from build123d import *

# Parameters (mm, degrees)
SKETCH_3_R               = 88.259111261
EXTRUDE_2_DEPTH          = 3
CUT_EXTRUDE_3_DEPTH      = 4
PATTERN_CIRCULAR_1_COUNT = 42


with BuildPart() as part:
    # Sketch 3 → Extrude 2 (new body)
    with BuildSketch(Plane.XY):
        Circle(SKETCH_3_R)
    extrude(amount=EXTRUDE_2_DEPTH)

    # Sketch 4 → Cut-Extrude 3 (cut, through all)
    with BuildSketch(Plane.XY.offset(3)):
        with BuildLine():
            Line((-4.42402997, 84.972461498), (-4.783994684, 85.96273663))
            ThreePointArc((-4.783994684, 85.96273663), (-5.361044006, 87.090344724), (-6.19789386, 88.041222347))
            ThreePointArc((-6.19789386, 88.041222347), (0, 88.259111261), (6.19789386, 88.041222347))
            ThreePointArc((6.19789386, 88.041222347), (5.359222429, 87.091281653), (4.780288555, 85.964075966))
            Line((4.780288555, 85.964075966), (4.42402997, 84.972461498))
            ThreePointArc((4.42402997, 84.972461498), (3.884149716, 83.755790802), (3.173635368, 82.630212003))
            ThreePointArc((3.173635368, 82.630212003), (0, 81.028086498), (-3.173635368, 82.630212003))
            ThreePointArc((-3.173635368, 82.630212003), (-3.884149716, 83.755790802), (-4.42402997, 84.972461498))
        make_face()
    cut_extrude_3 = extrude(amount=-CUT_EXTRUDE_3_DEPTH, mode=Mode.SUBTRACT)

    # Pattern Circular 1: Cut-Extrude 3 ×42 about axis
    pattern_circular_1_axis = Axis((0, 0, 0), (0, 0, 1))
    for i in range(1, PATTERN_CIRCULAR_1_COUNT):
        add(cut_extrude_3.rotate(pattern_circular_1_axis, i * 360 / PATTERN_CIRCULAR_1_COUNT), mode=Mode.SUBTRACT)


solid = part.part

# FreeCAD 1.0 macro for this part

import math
import FreeCAD as App
import Part
import Sketcher
Q = App.Units.Quantity

doc = App.newDocument("Part")
body = doc.addObject("PartDesign::Body", "Body")

sketch1 = doc.addObject("Sketcher::SketchObject", "Sketch")
body.addObject(sketch1)
sketch1.AttachmentSupport = (doc.XY_Plane, [""])
sketch1.MapMode = "FlatFace"
sketch1.addGeometry(Part.Circle(App.Vector(0, 0, 0), App.Vector(0, 0, 1), 88), False)
sketch1.addConstraint(Sketcher.Constraint("Coincident", 0, 3, -1, 1))
sketch1.addConstraint(Sketcher.Constraint("Diameter", 0, Q("176.518223 mm")))
pad1 = doc.addObject("PartDesign::Pad", "Pad")
body.addObject(pad1)
pad1.Profile = sketch1
pad1.Length = 3

sketch2 = doc.addObject("Sketcher::SketchObject", "Sketch001")
body.addObject(sketch2)
sketch2.AttachmentSupport = (doc.XY_Plane, [""])
sketch2.MapMode = "FlatFace"
sketch2.AttachmentOffset = App.Placement(App.Vector(0, 0, 3), App.Rotation())
sketch2.addGeometry(Part.LineSegment(App.Vector(-4.8, 86, 0), App.Vector(-4.4, 85, 0)), False)
sketch2.addGeometry(Part.ArcOfCircle(Part.Circle(App.Vector(4.2, 88.1, 0), App.Vector(0, 0, 1), 9.2), math.radians(-160.24), math.radians(-143.57)), False)
sketch2.addGeometry(Part.ArcOfCircle(Part.Circle(App.Vector(0, 85, 0), App.Vector(0, 0, 1), 3.9), math.radians(-144), math.radians(-36)), False)
sketch2.addGeometry(Part.ArcOfCircle(Part.Circle(App.Vector(-4.2, 88.1, 0), App.Vector(0, 0, 1), 9.2), math.radians(-36.43), math.radians(-19.76)), False)
sketch2.addGeometry(Part.LineSegment(App.Vector(4.4, 85, 0), App.Vector(4.8, 86, 0)), False)
sketch2.addGeometry(Part.ArcOfCircle(Part.Circle(App.Vector(9.6, 84.2, 0), App.Vector(0, 0, 1), 5.1), math.radians(131), math.radians(160)), False)
sketch2.addGeometry(Part.ArcOfCircle(Part.Circle(App.Vector(0, 0, 0), App.Vector(0, 0, 1), 88.3), math.radians(85.97), math.radians(94.03)), False)
sketch2.addGeometry(Part.ArcOfCircle(Part.Circle(App.Vector(-9.6, 84.2, 0), App.Vector(0, 0, 1), 5.1), math.radians(20), math.radians(48)), False)
sketch2.addConstraint(Sketcher.Constraint("Coincident", 0, 2, 1, 1))
sketch2.addConstraint(Sketcher.Constraint("Tangent", 1, 2, 2, 1))
sketch2.addConstraint(Sketcher.Constraint("Tangent", 2, 2, 3, 1))
sketch2.addConstraint(Sketcher.Constraint("Tangent", 3, 2, 4, 1))
sketch2.addConstraint(Sketcher.Constraint("Coincident", 4, 2, 5, 2))
sketch2.addConstraint(Sketcher.Constraint("Coincident", 5, 1, 6, 1))
sketch2.addConstraint(Sketcher.Constraint("Coincident", 6, 2, 7, 2))
sketch2.addConstraint(Sketcher.Constraint("Tangent", 7, 1, 0, 1))
sketch2.addConstraint(Sketcher.Constraint("Coincident", 6, 3, -1, 1))
sketch2.addConstraint(Sketcher.Constraint("Equal", 1, 3))
sketch2.addConstraint(Sketcher.Constraint("Equal", 5, 7))
sketch2.addConstraint(Sketcher.Constraint("Symmetric", 1, 3, 3, 3, -2))
sketch2.addConstraint(Sketcher.Constraint("Horizontal", 2, 3, 0, 2))
sketch2.addConstraint(Sketcher.Constraint("Horizontal", 0, 2, 3, 2))
sketch2.addConstraint(Sketcher.Constraint("Horizontal", 5, 1, 6, 2))
sketch2.addConstraint(Sketcher.Constraint("Equal", 0, 4))
sketch2.addConstraint(Sketcher.Constraint("Radius", 5, Q("5.10636 mm")))
sketch2.addConstraint(Sketcher.Constraint("Radius", 6, Q("88.259111 mm")))
sketch2.addConstraint(Sketcher.Constraint("Radius", 1, Q("9.159863 mm")))
sketch2.addConstraint(Sketcher.Constraint("Radius", 2, Q("3.944375 mm")))
sketch2.addConstraint(Sketcher.Constraint("DistanceX", 7, 3, 1, 3, Q("13.779499 mm")))
sketch2.addConstraint(Sketcher.Constraint("DistanceX", 7, 3, 0, 2, Q("5.159099 mm")))
sketch2.addConstraint(Sketcher.Constraint("DistanceY", 5, 1, 1, 3, Q("0.028301 mm")))
sketch2.addConstraint(Sketcher.Constraint("DistanceX", 6, 2, 7, 1, Q("1.413899 mm")))
pocket1 = doc.addObject("PartDesign::Pocket", "Pocket")
body.addObject(pocket1)
pocket1.Profile = sketch2
pocket1.Type = "ThroughAll"
doc.recompute()

polarpattern = doc.addObject("PartDesign::PolarPattern", "PolarPattern")
body.addObject(polarpattern)
polarpattern.Originals = [pocket1]
polarpattern.Axis = (doc.Z_Axis, [""])
polarpattern.Angle = 360
polarpattern.Occurrences = 42
body.Tip = polarpattern

doc.recompute()
